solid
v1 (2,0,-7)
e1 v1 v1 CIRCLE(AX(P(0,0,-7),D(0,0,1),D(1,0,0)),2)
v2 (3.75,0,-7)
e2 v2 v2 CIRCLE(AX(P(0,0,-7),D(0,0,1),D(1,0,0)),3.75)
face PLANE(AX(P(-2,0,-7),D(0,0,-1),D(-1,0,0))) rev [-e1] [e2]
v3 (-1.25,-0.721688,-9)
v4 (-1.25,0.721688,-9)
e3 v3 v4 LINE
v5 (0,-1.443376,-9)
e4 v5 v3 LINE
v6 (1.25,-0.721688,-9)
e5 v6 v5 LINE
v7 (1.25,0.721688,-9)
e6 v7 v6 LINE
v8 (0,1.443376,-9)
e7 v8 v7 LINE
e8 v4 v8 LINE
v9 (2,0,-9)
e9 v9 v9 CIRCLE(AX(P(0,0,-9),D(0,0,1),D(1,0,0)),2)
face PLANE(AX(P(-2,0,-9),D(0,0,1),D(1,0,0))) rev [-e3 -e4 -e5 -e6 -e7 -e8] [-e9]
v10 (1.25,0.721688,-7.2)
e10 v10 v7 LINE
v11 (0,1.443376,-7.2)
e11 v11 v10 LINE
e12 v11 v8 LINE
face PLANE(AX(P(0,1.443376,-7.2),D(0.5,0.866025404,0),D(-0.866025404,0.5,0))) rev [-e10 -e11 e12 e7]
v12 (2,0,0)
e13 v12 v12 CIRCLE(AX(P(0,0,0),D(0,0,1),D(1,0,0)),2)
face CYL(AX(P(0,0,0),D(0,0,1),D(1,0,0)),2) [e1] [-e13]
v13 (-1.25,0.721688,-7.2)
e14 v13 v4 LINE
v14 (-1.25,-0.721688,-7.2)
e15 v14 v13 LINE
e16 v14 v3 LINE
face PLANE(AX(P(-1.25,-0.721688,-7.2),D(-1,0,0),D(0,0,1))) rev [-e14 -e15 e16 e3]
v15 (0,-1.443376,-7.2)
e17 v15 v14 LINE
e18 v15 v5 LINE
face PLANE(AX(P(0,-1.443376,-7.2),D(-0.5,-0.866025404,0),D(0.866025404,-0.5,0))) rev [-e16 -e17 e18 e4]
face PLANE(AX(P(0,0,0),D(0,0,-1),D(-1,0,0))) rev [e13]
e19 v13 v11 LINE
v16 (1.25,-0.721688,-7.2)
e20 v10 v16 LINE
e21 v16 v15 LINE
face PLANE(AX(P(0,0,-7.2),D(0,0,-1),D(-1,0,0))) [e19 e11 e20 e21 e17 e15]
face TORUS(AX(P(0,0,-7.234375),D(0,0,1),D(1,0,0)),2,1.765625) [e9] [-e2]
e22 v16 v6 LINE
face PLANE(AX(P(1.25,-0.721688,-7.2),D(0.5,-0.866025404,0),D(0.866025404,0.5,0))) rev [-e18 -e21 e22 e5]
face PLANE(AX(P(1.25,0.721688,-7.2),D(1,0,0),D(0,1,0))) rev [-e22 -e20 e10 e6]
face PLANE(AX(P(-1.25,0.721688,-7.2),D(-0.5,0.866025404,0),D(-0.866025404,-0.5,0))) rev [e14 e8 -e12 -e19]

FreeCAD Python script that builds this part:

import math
import FreeCAD as App
import Part
import Sketcher

V = App.Vector
Q = App.Units.Quantity

doc = App.newDocument("Part")
body = doc.addObject("PartDesign::Body", "Body")

# Sketch on XZ plane
sketch1 = doc.addObject("Sketcher::SketchObject", "Sketch")
body.addObject(sketch1)
sketch1.AttachmentSupport = (doc.XZ_Plane, [""])
sketch1.MapMode = "FlatFace"
sketch1.addGeometry(Part.LineSegment(V(-2, 0, 0), V(0, 0, 0)), False)
sketch1.addGeometry(Part.LineSegment(V(0, 0, 0), V(0, -9, 0)), False)
sketch1.addGeometry(Part.LineSegment(V(0, -9, 0), V(-2, -9, 0)), False)
sketch1.addGeometry(Part.ArcOfCircle(Part.Circle(V(-2, -7.2, 0), V(0, 0, 1), 1.8), math.radians(172), math.radians(270)), False)
sketch1.addGeometry(Part.LineSegment(V(-3.8, -7, 0), V(-2, -7, 0)), False)
sketch1.addGeometry(Part.LineSegment(V(-2, -7, 0), V(-2, 0, 0)), False)
sketch1.addConstraint(Sketcher.Constraint("Coincident", 0, 2, 1, 1))
sketch1.addConstraint(Sketcher.Constraint("Coincident", 1, 2, 2, 1))
sketch1.addConstraint(Sketcher.Constraint("Tangent", 2, 2, 3, 2))
sketch1.addConstraint(Sketcher.Constraint("Coincident", 3, 1, 4, 1))
sketch1.addConstraint(Sketcher.Constraint("Coincident", 4, 2, 5, 1))
sketch1.addConstraint(Sketcher.Constraint("Coincident", 5, 2, 0, 1))
sketch1.addConstraint(Sketcher.Constraint("Horizontal", 0))
sketch1.addConstraint(Sketcher.Constraint("Vertical", 1))
sketch1.addConstraint(Sketcher.Constraint("Horizontal", 2))
sketch1.addConstraint(Sketcher.Constraint("Horizontal", 4))
sketch1.addConstraint(Sketcher.Constraint("Vertical", 5))
sketch1.addConstraint(Sketcher.Constraint("Coincident", 0, 2, -1, 1))
sketch1.addConstraint(Sketcher.Constraint("Vertical", 2, 2, 4, 2))
sketch1.addConstraint(Sketcher.Constraint("DistanceX", 0, 1, 0, 2, 2.0))
sketch1.addConstraint(Sketcher.Constraint("DistanceY", 1, 2, 1, 1, 9.0))
sketch1.addConstraint(Sketcher.Constraint("DistanceY", 5, 1, 5, 2, 7.0))
sketch1.addConstraint(Sketcher.Constraint("DistanceX", 4, 1, 4, 2, 1.75))
revolution = doc.addObject("PartDesign::Revolution", "Revolution")
body.addObject(revolution)
revolution.Profile = sketch1
revolution.ReferenceAxis = (sketch1, ["V_Axis"])
revolution.Angle = 360

# Sketch on XY plane
sketch2 = doc.addObject("Sketcher::SketchObject", "Sketch001")
body.addObject(sketch2)
sketch2.AttachmentSupport = (doc.XY_Plane, [""])
sketch2.MapMode = "FlatFace"
sketch2.AttachmentOffset = App.Placement(V(0, 0, -9), App.Rotation())
sketch2.addGeometry(Part.LineSegment(V(0, -1.4, 0), V(-1.2, -0.7, 0)), False)
sketch2.addGeometry(Part.LineSegment(V(-1.2, -0.7, 0), V(-1.2, 0.7, 0)), False)
sketch2.addGeometry(Part.LineSegment(V(-1.2, 0.7, 0), V(0, 1.4, 0)), False)
sketch2.addGeometry(Part.LineSegment(V(0, 1.4, 0), V(1.2, 0.7, 0)), False)
sketch2.addGeometry(Part.LineSegment(V(1.2, 0.7, 0), V(1.2, -0.7, 0)), False)
sketch2.addGeometry(Part.LineSegment(V(1.2, -0.7, 0), V(0, -1.4, 0)), False)
sketch2.addConstraint(Sketcher.Constraint("Coincident", 0, 2, 1, 1))
sketch2.addConstraint(Sketcher.Constraint("Coincident", 1, 2, 2, 1))
sketch2.addConstraint(Sketcher.Constraint("Coincident", 2, 2, 3, 1))
sketch2.addConstraint(Sketcher.Constraint("Coincident", 3, 2, 4, 1))
sketch2.addConstraint(Sketcher.Constraint("Coincident", 4, 2, 5, 1))
sketch2.addConstraint(Sketcher.Constraint("Coincident", 5, 2, 0, 1))
sketch2.addConstraint(Sketcher.Constraint("Vertical", 1))
sketch2.addConstraint(Sketcher.Constraint("Vertical", 4))
sketch2.addConstraint(Sketcher.Constraint("Symmetric", 0, 2, 3, 2, -1, 1))
sketch2.addConstraint(Sketcher.Constraint("Symmetric", 2, 2, 5, 2, -1, 1))
sketch2.addConstraint(Sketcher.Constraint("PointOnObject", 2, 2, -2))
sketch2.addConstraint(Sketcher.Constraint("Parallel", 2, 5))
sketch2.addConstraint(Sketcher.Constraint("Horizontal", 1, 2, 3, 2))
sketch2.addConstraint(Sketcher.Constraint("Angle", 0, Q("150 deg")))
sketch2.addConstraint(Sketcher.Constraint("DistanceX", 1, 2, 3, 2, 2.5))
sketch2.addConstraint(Sketcher.Constraint("DistanceY", 1, 1, 1, 2, 1.443376))
pocket1 = doc.addObject("PartDesign::Pocket", "Pocket")
body.addObject(pocket1)
pocket1.Profile = sketch2
pocket1.Length = 1.8
pocket1.Reversed = True

doc.recompute()
